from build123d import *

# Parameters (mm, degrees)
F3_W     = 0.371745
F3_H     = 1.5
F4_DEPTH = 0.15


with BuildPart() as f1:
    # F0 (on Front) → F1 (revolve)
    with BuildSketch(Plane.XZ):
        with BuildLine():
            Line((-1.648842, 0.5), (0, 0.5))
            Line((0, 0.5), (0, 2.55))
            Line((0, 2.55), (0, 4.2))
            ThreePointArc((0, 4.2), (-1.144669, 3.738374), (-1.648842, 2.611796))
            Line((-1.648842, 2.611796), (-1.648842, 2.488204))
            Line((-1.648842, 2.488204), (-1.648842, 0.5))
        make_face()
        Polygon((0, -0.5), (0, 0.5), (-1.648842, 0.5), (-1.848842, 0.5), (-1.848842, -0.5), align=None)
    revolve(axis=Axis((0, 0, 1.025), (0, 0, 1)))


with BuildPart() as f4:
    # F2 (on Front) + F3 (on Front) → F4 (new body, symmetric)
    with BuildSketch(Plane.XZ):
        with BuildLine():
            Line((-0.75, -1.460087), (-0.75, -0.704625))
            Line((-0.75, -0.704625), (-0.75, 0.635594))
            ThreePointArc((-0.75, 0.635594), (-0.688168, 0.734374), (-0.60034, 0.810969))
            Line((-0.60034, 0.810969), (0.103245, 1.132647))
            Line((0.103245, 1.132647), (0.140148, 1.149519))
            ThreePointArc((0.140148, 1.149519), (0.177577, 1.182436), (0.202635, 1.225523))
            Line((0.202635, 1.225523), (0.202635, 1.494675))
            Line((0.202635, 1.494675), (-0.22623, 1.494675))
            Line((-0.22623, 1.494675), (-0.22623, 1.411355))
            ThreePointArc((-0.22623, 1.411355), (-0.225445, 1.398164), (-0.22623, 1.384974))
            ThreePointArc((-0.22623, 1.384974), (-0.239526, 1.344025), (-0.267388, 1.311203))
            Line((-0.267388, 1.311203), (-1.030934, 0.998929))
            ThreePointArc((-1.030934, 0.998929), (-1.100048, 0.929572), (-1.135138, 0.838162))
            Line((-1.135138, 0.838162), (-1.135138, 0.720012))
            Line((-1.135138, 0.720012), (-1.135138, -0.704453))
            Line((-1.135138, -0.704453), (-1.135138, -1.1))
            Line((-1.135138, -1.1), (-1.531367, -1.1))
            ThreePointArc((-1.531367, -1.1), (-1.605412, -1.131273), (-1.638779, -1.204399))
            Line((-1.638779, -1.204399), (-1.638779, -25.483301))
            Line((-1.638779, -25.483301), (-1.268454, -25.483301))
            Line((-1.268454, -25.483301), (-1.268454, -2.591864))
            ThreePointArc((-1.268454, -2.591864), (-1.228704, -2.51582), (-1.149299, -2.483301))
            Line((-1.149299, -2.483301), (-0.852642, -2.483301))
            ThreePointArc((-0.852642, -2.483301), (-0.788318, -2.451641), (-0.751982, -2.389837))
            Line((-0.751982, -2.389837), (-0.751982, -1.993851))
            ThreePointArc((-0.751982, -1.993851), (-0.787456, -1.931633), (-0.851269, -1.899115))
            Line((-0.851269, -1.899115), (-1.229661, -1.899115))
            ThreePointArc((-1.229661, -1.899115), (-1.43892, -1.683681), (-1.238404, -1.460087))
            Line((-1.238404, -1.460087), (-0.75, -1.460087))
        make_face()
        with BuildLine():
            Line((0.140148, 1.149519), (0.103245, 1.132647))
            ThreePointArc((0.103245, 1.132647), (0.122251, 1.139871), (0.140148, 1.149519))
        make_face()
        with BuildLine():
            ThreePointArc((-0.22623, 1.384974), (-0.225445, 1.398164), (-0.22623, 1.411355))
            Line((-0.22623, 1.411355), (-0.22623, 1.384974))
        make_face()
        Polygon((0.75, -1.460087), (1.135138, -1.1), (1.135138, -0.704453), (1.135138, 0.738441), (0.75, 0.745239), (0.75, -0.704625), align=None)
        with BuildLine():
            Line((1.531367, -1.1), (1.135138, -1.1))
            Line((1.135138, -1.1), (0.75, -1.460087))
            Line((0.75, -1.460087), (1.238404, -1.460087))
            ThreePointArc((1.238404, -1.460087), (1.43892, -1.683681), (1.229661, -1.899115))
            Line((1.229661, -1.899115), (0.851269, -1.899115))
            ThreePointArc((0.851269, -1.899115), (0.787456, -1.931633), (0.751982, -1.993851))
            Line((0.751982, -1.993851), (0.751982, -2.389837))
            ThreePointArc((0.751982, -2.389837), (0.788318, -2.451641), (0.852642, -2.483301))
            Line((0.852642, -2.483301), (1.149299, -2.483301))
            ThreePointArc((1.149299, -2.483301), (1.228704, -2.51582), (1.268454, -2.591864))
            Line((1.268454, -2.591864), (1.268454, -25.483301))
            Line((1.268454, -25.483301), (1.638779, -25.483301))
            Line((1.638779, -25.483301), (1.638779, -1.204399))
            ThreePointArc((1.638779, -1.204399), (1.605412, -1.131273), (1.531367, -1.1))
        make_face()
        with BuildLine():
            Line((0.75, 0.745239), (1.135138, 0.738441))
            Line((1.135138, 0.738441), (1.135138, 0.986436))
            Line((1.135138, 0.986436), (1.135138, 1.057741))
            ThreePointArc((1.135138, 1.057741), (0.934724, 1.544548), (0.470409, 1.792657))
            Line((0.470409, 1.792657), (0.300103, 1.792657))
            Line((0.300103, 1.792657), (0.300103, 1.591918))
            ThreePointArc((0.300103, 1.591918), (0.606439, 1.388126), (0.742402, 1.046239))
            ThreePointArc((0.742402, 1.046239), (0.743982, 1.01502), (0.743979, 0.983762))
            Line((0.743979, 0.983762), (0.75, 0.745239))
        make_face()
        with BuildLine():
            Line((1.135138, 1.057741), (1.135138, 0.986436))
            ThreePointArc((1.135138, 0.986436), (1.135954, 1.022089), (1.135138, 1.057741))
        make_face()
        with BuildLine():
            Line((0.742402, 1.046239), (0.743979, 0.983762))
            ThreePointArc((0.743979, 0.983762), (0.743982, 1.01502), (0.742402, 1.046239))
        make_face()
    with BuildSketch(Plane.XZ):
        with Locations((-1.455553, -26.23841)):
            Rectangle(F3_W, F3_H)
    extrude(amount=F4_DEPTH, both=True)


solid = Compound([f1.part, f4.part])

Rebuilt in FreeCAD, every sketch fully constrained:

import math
import FreeCAD as App
import Part
import Sketcher
from FreeCAD import Vector


def add_polygon(sketch, points):
    """Adds a closed chain of lines whose ends are joined by coincident constraints."""
    first, n = sketch.GeometryCount, len(points)
    for a, b in zip(points, points[1:] + points[:1]):
        sketch.addGeometry(Part.LineSegment(App.Vector(*a, 0), App.Vector(*b, 0)), False)
    for i in range(n):
        sketch.addConstraint(Sketcher.Constraint("Coincident", first + i, 2, first + (i + 1) % n, 1))

doc = App.newDocument("Part")
body = doc.addObject("PartDesign::Body", "Body")

# Sketch on XZ plane
sketch1 = doc.addObject("Sketcher::SketchObject", "Sketch")
body.addObject(sketch1)
sketch1.AttachmentSupport = (doc.XZ_Plane, [""])
sketch1.MapMode = "FlatFace"
sketch1.addGeometry(Part.ArcOfCircle(Part.Circle(Vector(0, 2.55, 0), Vector(0, 0, 1), 1.65), math.radians(90), math.radians(178)), False)
sketch1.addGeometry(Part.LineSegment(Vector(-1.65, 2.61, 0), Vector(-1.65, 0.5, 0)), False)
sketch1.addGeometry(Part.LineSegment(Vector(-1.65, 0.5, 0), Vector(-1.85, 0.5, 0)), False)
sketch1.addGeometry(Part.LineSegment(Vector(-1.85, 0.5, 0), Vector(-1.85, -0.5, 0)), False)
sketch1.addGeometry(Part.LineSegment(Vector(-1.85, -0.5, 0), Vector(0, -0.5, 0)), False)
sketch1.addGeometry(Part.LineSegment(Vector(0, -0.5, 0), Vector(0, 4.2, 0)), False)
sketch1.addConstraint(Sketcher.Constraint("Coincident", 0, 2, 1, 1))
sketch1.addConstraint(Sketcher.Constraint("Coincident", 1, 2, 2, 1))
sketch1.addConstraint(Sketcher.Constraint("Coincident", 2, 2, 3, 1))
sketch1.addConstraint(Sketcher.Constraint("Coincident", 3, 2, 4, 1))
sketch1.addConstraint(Sketcher.Constraint("Coincident", 4, 2, 5, 1))
sketch1.addConstraint(Sketcher.Constraint("Coincident", 5, 2, 0, 1))
sketch1.addConstraint(Sketcher.Constraint("Vertical", 1))
sketch1.addConstraint(Sketcher.Constraint("Horizontal", 2))
sketch1.addConstraint(Sketcher.Constraint("Vertical", 3))
sketch1.addConstraint(Sketcher.Constraint("Horizontal", 4))
sketch1.addConstraint(Sketcher.Constraint("Vertical", 5))
sketch1.addConstraint(Sketcher.Constraint("PointOnObject", 0, 3, -2))
sketch1.addConstraint(Sketcher.Constraint("PointOnObject", 4, 2, -2))
sketch1.addConstraint(Sketcher.Constraint("DistanceY", 3, 2, 3, 1, 1.0))
sketch1.addConstraint(Sketcher.Constraint("Radius", 0, 1.649999))
sketch1.addConstraint(Sketcher.Constraint("DistanceX", 2, 2, 2, 1, 0.2))
sketch1.addConstraint(Sketcher.Constraint("DistanceY", 5, 1, 5, 2, 4.7))
sketch1.addConstraint(Sketcher.Constraint("DistanceY", -1, 1, 1, 2, 0.5))
sketch1.addConstraint(Sketcher.Constraint("DistanceX", 4, 1, 4, 2, 1.848842))
revolution = doc.addObject("PartDesign::Revolution", "Revolution")
body.addObject(revolution)
revolution.Profile = sketch1
revolution.ReferenceAxis = (sketch1, ["V_Axis"])
revolution.Angle = 360
body2 = doc.addObject("PartDesign::Body", "Body001")
body2.AllowCompound = True

# Sketch on XZ plane
sketch2 = doc.addObject("Sketcher::SketchObject", "Sketch001")
body2.addObject(sketch2)
sketch2.AttachmentSupport = (doc.getObject("XZ_Plane001"), [""])
sketch2.MapMode = "FlatFace"
sketch2.addGeometry(Part.LineSegment(Vector(-0.75, -1.46, 0), Vector(-0.75, 0.636, 0)), False)  # 0
sketch2.addGeometry(Part.ArcOfCircle(Part.Circle(Vector(-0.386, 0.476, 0), Vector(0, 0, 1), 0.397), math.radians(123), math.radians(156)), False)  # 1
sketch2.addGeometry(Part.LineSegment(Vector(-0.6, 0.811, 0), Vector(0.103, 1.133, 0)), False)  # 2
sketch2.addGeometry(Part.ArcOfCircle(Part.Circle(Vector(0.058, 1.281, 0), Vector(0, 0, 1), 0.155), math.radians(-72.95), math.radians(-57.91)), False)  # 3
sketch2.addGeometry(Part.ArcOfCircle(Part.Circle(Vector(0.058, 1.281, 0), Vector(0, 0, 1), 0.155), math.radians(-58), math.radians(-21)), False)  # 4
sketch2.addGeometry(Part.LineSegment(Vector(0.203, 1.226, 0), Vector(0.203, 1.495, 0)), False)  # 5
sketch2.addGeometry(Part.LineSegment(Vector(0.203, 1.495, 0), Vector(-0.226, 1.495, 0)), False)  # 6
sketch2.addGeometry(Part.LineSegment(Vector(-0.226, 1.495, 0), Vector(-0.226, 1.385, 0)), False)  # 7
sketch2.addGeometry(Part.ArcOfCircle(Part.Circle(Vector(-0.337, 1.398, 0), Vector(0, 0, 1), 0.111), math.radians(-51), math.radians(-7)), False)  # 8
sketch2.addGeometry(Part.LineSegment(Vector(-0.267, 1.311, 0), Vector(-1.031, 0.999, 0)), False)  # 9
sketch2.addGeometry(Part.ArcOfCircle(Part.Circle(Vector(-0.902, 0.801, 0), Vector(0, 0, 1), 0.236), math.radians(123), math.radians(171)), False)  # 10
sketch2.addGeometry(Part.LineSegment(Vector(-1.135, 0.838, 0), Vector(-1.135, -1.1, 0)), False)  # 11
sketch2.addGeometry(Part.LineSegment(Vector(-1.135, -1.1, 0), Vector(-1.531, -1.1, 0)), False)  # 12
sketch2.addGeometry(Part.ArcOfCircle(Part.Circle(Vector(-1.528, -1.211, 0), Vector(0, 0, 1), 0.111), math.radians(92), math.radians(177)), False)  # 13
sketch2.addGeometry(Part.LineSegment(Vector(-1.639, -1.204, 0), Vector(-1.639, -25.483, 0)), False)  # 14
sketch2.addGeometry(Part.LineSegment(Vector(-1.639, -25.483, 0), Vector(-1.268, -25.483, 0)), False)  # 15
sketch2.addGeometry(Part.LineSegment(Vector(-1.268, -25.483, 0), Vector(-1.268, -2.592, 0)), False)  # 16
sketch2.addGeometry(Part.ArcOfCircle(Part.Circle(Vector(-1.144, -2.608, 0), Vector(0, 0, 1), 0.125), math.radians(92), math.radians(172)), False)  # 17
sketch2.addGeometry(Part.LineSegment(Vector(-1.149, -2.483, 0), Vector(-0.853, -2.483, 0)), False)  # 18
sketch2.addGeometry(Part.ArcOfCircle(Part.Circle(Vector(-0.873, -2.36, 0), Vector(0, 0, 1), 0.125), math.radians(-80), math.radians(-14)), False)  # 19
sketch2.addGeometry(Part.LineSegment(Vector(-0.752, -2.39, 0), Vector(-0.752, -1.994, 0)), False)  # 20
sketch2.addGeometry(Part.ArcOfCircle(Part.Circle(Vector(-0.874, -2.022, 0), Vector(0, 0, 1), 0.125), math.radians(13), math.radians(80)), False)  # 21
sketch2.addGeometry(Part.LineSegment(Vector(-0.851, -1.899, 0), Vector(-1.23, -1.899, 0)), False)  # 22
sketch2.addGeometry(Part.ArcOfCircle(Part.Circle(Vector(-1.219, -1.679, 0), Vector(0, 0, 1), 0.22), math.radians(95), math.radians(267)), False)  # 23
sketch2.addGeometry(Part.LineSegment(Vector(-1.238, -1.46, 0), Vector(-0.75, -1.46, 0)), False)  # 24
sketch2.addGeometry(Part.LineSegment(Vector(1.135, -1.1, 0), Vector(1.135, 0.986, 0)), False)  # 25
sketch2.addGeometry(Part.ArcOfCircle(Part.Circle(Vector(0.357, 1.022, 0), Vector(0, 0, 1), 0.779), math.radians(-2.62), math.radians(2.62)), False)  # 26
sketch2.addGeometry(Part.ArcOfCircle(Part.Circle(Vector(0.357, 1.022, 0), Vector(0, 0, 1), 0.779), math.radians(3), math.radians(82)), False)  # 27
sketch2.addGeometry(Part.LineSegment(Vector(0.47, 1.793, 0), Vector(0.3, 1.793, 0)), False)  # 28
sketch2.addGeometry(Part.LineSegment(Vector(0.3, 1.793, 0), Vector(0.3, 1.592, 0)), False)  # 29
sketch2.addGeometry(Part.ArcOfCircle(Part.Circle(Vector(0.127, 0.999, 0), Vector(0, 0, 1), 0.617), math.radians(4), math.radians(74)), False)  # 30
sketch2.addGeometry(Part.LineSegment(Vector(0.742, 1.046, 0), Vector(0.744, 0.984, 0)), False)  # 31
sketch2.addGeometry(Part.LineSegment(Vector(0.744, 0.984, 0), Vector(0.75, 0.745, 0)), False)  # 32
sketch2.addGeometry(Part.LineSegment(Vector(0.75, 0.745, 0), Vector(0.75, -1.46, 0)), False)  # 33
sketch2.addGeometry(Part.LineSegment(Vector(0.75, -1.46, 0), Vector(1.238, -1.46, 0)), False)  # 34
sketch2.addGeometry(Part.ArcOfCircle(Part.Circle(Vector(1.219, -1.679, 0), Vector(0, 0, 1), 0.22), math.radians(-87), math.radians(85)), False)  # 35
sketch2.addGeometry(Part.LineSegment(Vector(1.23, -1.899, 0), Vector(0.851, -1.899, 0)), False)  # 36
sketch2.addGeometry(Part.ArcOfCircle(Part.Circle(Vector(0.874, -2.022, 0), Vector(0, 0, 1), 0.125), math.radians(100), math.radians(167)), False)  # 37
sketch2.addGeometry(Part.LineSegment(Vector(0.752, -1.994, 0), Vector(0.752, -2.39, 0)), False)  # 38
sketch2.addGeometry(Part.ArcOfCircle(Part.Circle(Vector(0.873, -2.36, 0), Vector(0, 0, 1), 0.125), math.radians(-166), math.radians(-100)), False)  # 39
sketch2.addGeometry(Part.LineSegment(Vector(0.853, -2.483, 0), Vector(1.149, -2.483, 0)), False)  # 40
sketch2.addGeometry(Part.ArcOfCircle(Part.Circle(Vector(1.144, -2.608, 0), Vector(0, 0, 1), 0.125), math.radians(8), math.radians(88)), False)  # 41
sketch2.addGeometry(Part.LineSegment(Vector(1.268, -2.592, 0), Vector(1.268, -25.483, 0)), False)  # 42
sketch2.addGeometry(Part.LineSegment(Vector(1.268, -25.483, 0), Vector(1.639, -25.483, 0)), False)  # 43
sketch2.addGeometry(Part.LineSegment(Vector(1.639, -25.483, 0), Vector(1.639, -1.204, 0)), False)  # 44
sketch2.addGeometry(Part.ArcOfCircle(Part.Circle(Vector(1.528, -1.211, 0), Vector(0, 0, 1), 0.111), math.radians(3), math.radians(88)), False)  # 45
sketch2.addGeometry(Part.LineSegment(Vector(1.531, -1.1, 0), Vector(1.135, -1.1, 0)), False)  # 46
add_polygon(sketch2, [(-1.641, -25.488), (-1.641, -26.988), (-1.27, -26.988), (-1.27, -25.488)])  # lines 47-50
sketch2.addConstraint(Sketcher.Constraint("Coincident", 0, 2, 1, 2))
sketch2.addConstraint(Sketcher.Constraint("Coincident", 1, 1, 2, 1))
sketch2.addConstraint(Sketcher.Constraint("Coincident", 2, 2, 3, 1))
sketch2.addConstraint(Sketcher.Constraint("Coincident", 3, 2, 4, 1))
sketch2.addConstraint(Sketcher.Constraint("Coincident", 4, 2, 5, 1))
sketch2.addConstraint(Sketcher.Constraint("Coincident", 5, 2, 6, 1))
sketch2.addConstraint(Sketcher.Constraint("Coincident", 6, 2, 7, 1))
sketch2.addConstraint(Sketcher.Constraint("Coincident", 7, 2, 8, 2))
sketch2.addConstraint(Sketcher.Constraint("Coincident", 8, 1, 9, 1))
sketch2.addConstraint(Sketcher.Constraint("Coincident", 9, 2, 10, 1))
sketch2.addConstraint(Sketcher.Constraint("Coincident", 10, 2, 11, 1))
sketch2.addConstraint(Sketcher.Constraint("Coincident", 11, 2, 12, 1))
sketch2.addConstraint(Sketcher.Constraint("Coincident", 12, 2, 13, 1))
sketch2.addConstraint(Sketcher.Constraint("Coincident", 13, 2, 14, 1))
sketch2.addConstraint(Sketcher.Constraint("Coincident", 14, 2, 15, 1))
sketch2.addConstraint(Sketcher.Constraint("Coincident", 15, 2, 16, 1))
sketch2.addConstraint(Sketcher.Constraint("Coincident", 16, 2, 17, 2))
sketch2.addConstraint(Sketcher.Constraint("Coincident", 17, 1, 18, 1))
sketch2.addConstraint(Sketcher.Constraint("Coincident", 18, 2, 19, 1))
sketch2.addConstraint(Sketcher.Constraint("Coincident", 19, 2, 20, 1))
sketch2.addConstraint(Sketcher.Constraint("Coincident", 20, 2, 21, 1))
sketch2.addConstraint(Sketcher.Constraint("Coincident", 21, 2, 22, 1))
sketch2.addConstraint(Sketcher.Constraint("Coincident", 22, 2, 23, 2))
sketch2.addConstraint(Sketcher.Constraint("Coincident", 23, 1, 24, 1))
sketch2.addConstraint(Sketcher.Constraint("Coincident", 24, 2, 0, 1))
sketch2.addConstraint(Sketcher.Constraint("Coincident", 25, 2, 26, 1))
sketch2.addConstraint(Sketcher.Constraint("Coincident", 26, 2, 27, 1))
sketch2.addConstraint(Sketcher.Constraint("Coincident", 27, 2, 28, 1))
sketch2.addConstraint(Sketcher.Constraint("Coincident", 28, 2, 29, 1))
sketch2.addConstraint(Sketcher.Constraint("Coincident", 29, 2, 30, 2))
sketch2.addConstraint(Sketcher.Constraint("Coincident", 30, 1, 31, 1))
sketch2.addConstraint(Sketcher.Constraint("Coincident", 31, 2, 32, 1))
sketch2.addConstraint(Sketcher.Constraint("Coincident", 32, 2, 33, 1))
sketch2.addConstraint(Sketcher.Constraint("Coincident", 33, 2, 34, 1))
sketch2.addConstraint(Sketcher.Constraint("Coincident", 34, 2, 35, 2))
sketch2.addConstraint(Sketcher.Constraint("Coincident", 35, 1, 36, 1))
sketch2.addConstraint(Sketcher.Constraint("Coincident", 36, 2, 37, 1))
sketch2.addConstraint(Sketcher.Constraint("Coincident", 37, 2, 38, 1))
sketch2.addConstraint(Sketcher.Constraint("Coincident", 38, 2, 39, 1))
sketch2.addConstraint(Sketcher.Constraint("Coincident", 39, 2, 40, 1))
sketch2.addConstraint(Sketcher.Constraint("Coincident", 40, 2, 41, 2))
sketch2.addConstraint(Sketcher.Constraint("Coincident", 41, 1, 42, 1))
sketch2.addConstraint(Sketcher.Constraint("Coincident", 42, 2, 43, 1))
sketch2.addConstraint(Sketcher.Constraint("Coincident", 43, 2, 44, 1))
sketch2.addConstraint(Sketcher.Constraint("Coincident", 44, 2, 45, 1))
sketch2.addConstraint(Sketcher.Constraint("Coincident", 45, 2, 46, 1))
sketch2.addConstraint(Sketcher.Constraint("Coincident", 46, 2, 25, 1))
sketch2.addConstraint(Sketcher.Constraint("Vertical", 0))
sketch2.addConstraint(Sketcher.Constraint("Vertical", 5))
sketch2.addConstraint(Sketcher.Constraint("Horizontal", 6))
sketch2.addConstraint(Sketcher.Constraint("Vertical", 7))
sketch2.addConstraint(Sketcher.Constraint("Vertical", 11))
sketch2.addConstraint(Sketcher.Constraint("Horizontal", 12))
sketch2.addConstraint(Sketcher.Constraint("Vertical", 14))
sketch2.addConstraint(Sketcher.Constraint("Horizontal", 15))
sketch2.addConstraint(Sketcher.Constraint("Vertical", 16))
sketch2.addConstraint(Sketcher.Constraint("Horizontal", 18))
sketch2.addConstraint(Sketcher.Constraint("Vertical", 20))
sketch2.addConstraint(Sketcher.Constraint("Horizontal", 22))
sketch2.addConstraint(Sketcher.Constraint("Horizontal", 24))
sketch2.addConstraint(Sketcher.Constraint("Vertical", 25))
sketch2.addConstraint(Sketcher.Constraint("Horizontal", 28))
sketch2.addConstraint(Sketcher.Constraint("Vertical", 29))
sketch2.addConstraint(Sketcher.Constraint("Vertical", 33))
sketch2.addConstraint(Sketcher.Constraint("Horizontal", 34))
sketch2.addConstraint(Sketcher.Constraint("Horizontal", 36))
sketch2.addConstraint(Sketcher.Constraint("Vertical", 38))
sketch2.addConstraint(Sketcher.Constraint("Horizontal", 40))
sketch2.addConstraint(Sketcher.Constraint("Vertical", 42))
sketch2.addConstraint(Sketcher.Constraint("Horizontal", 43))
sketch2.addConstraint(Sketcher.Constraint("Vertical", 44))
sketch2.addConstraint(Sketcher.Constraint("Horizontal", 46))
sketch2.addConstraint(Sketcher.Constraint("Vertical", 47))
sketch2.addConstraint(Sketcher.Constraint("Horizontal", 48))
sketch2.addConstraint(Sketcher.Constraint("Vertical", 49))
sketch2.addConstraint(Sketcher.Constraint("Horizontal", 50))
sketch2.addConstraint(Sketcher.Constraint("Equal", 23, 35))
sketch2.addConstraint(Sketcher.Constraint("Equal", 21, 37))
sketch2.addConstraint(Sketcher.Constraint("Equal", 19, 39))
sketch2.addConstraint(Sketcher.Constraint("Equal", 17, 41))
sketch2.addConstraint(Sketcher.Constraint("Equal", 13, 45))
sketch2.addConstraint(Sketcher.Constraint("Symmetric", 23, 3, 35, 3, -2))
sketch2.addConstraint(Sketcher.Constraint("Symmetric", 21, 3, 37, 3, -2))
sketch2.addConstraint(Sketcher.Constraint("Symmetric", 19, 3, 39, 3, -2))
sketch2.addConstraint(Sketcher.Constraint("Symmetric", 17, 3, 41, 3, -2))
sketch2.addConstraint(Sketcher.Constraint("Symmetric", 13, 3, 45, 3, -2))
sketch2.addConstraint(Sketcher.Constraint("Symmetric", 24, 2, 33, 2, -2))
sketch2.addConstraint(Sketcher.Constraint("Symmetric", 15, 2, 42, 2, -2))
sketch2.addConstraint(Sketcher.Constraint("Symmetric", 11, 2, 46, 2, -2))
sketch2.addConstraint(Sketcher.Constraint("Parallel", 31, 32))
sketch2.addConstraint(Sketcher.Constraint("Horizontal", 26, 3, 27, 3))
sketch2.addConstraint(Sketcher.Constraint("Horizontal", 22, 2, 35, 1))
sketch2.addConstraint(Sketcher.Constraint("Horizontal", 20, 2, 37, 2))
sketch2.addConstraint(Sketcher.Constraint("Horizontal", 18, 2, 39, 2))
sketch2.addConstraint(Sketcher.Constraint("Horizontal", 13, 2, 44, 2))
sketch2.addConstraint(Sketcher.Constraint("Vertical", 25, 2, 26, 2))
sketch2.addConstraint(Sketcher.Constraint("DistanceY", 47, 2, 47, 1, 1.5))
sketch2.addConstraint(Sketcher.Constraint("DistanceY", 11, 2, -1, 1, 1.1))
sketch2.addConstraint(Sketcher.Constraint("DistanceX", 0, 2, -1, 1, 0.75))
sketch2.addConstraint(Sketcher.Constraint("Radius", 1, 0.397379))
sketch2.addConstraint(Sketcher.Constraint("Radius", 10, 0.236451))
sketch2.addConstraint(Sketcher.Constraint("Radius", 23, 0.22008))
sketch2.addConstraint(Sketcher.Constraint("Radius", 26, 0.779269))
sketch2.addConstraint(Sketcher.Constraint("DistanceY", 7, 2, 7, 1, 0.109701))
sketch2.addConstraint(Sketcher.Constraint("Radius", 3, 0.155085))
sketch2.addConstraint(Sketcher.Constraint("Radius", 4, 0.155134))
sketch2.addConstraint(Sketcher.Constraint("Radius", 8, 0.111128))
sketch2.addConstraint(Sketcher.Constraint("Radius", 13, 0.110697))
sketch2.addConstraint(Sketcher.Constraint("Radius", 17, 0.125044))
sketch2.addConstraint(Sketcher.Constraint("Radius", 19, 0.124958))
sketch2.addConstraint(Sketcher.Constraint("Radius", 21, 0.124954))
sketch2.addConstraint(Sketcher.Constraint("Radius", 27, 0.778857))
sketch2.addConstraint(Sketcher.Constraint("Radius", 30, 0.617265))
sketch2.addConstraint(Sketcher.Constraint("Distance", 32, 0.238599))
sketch2.addConstraint(Sketcher.Constraint("DistanceX", 12, 2, 12, 1, 0.396229))
sketch2.addConstraint(Sketcher.Constraint("DistanceX", 22, 2, 22, 1, 0.378392))
sketch2.addConstraint(Sketcher.Constraint("DistanceY", 0, 1, 0, 2, 2.095681))
sketch2.addConstraint(Sketcher.Constraint("DistanceY", 29, 2, 29, 1, 0.200739))
sketch2.addConstraint(Sketcher.Constraint("DistanceY", 23, 3, -1, 1, 1.679299))
sketch2.addConstraint(Sketcher.Constraint("DistanceY", 13, 2, -1, 1, 1.204399))
sketch2.addConstraint(Sketcher.Constraint("DistanceY", 14, 2, -1, 1, 25.483301))
sketch2.addConstraint(Sketcher.Constraint("DistanceX", 17, 1, -1, 1, 1.149299))
sketch2.addConstraint(Sketcher.Constraint("DistanceY", 17, 1, -1, 1, 2.483301))
sketch2.addConstraint(Sketcher.Constraint("DistanceX", 6, 2, 6, 1, 0.428865))
sketch2.addConstraint(Sketcher.Constraint("DistanceX", 15, 1, 15, 2, 0.370325))
sketch2.addConstraint(Sketcher.Constraint("DistanceX", 18, 1, 18, 2, 0.296657))
sketch2.addConstraint(Sketcher.Constraint("DistanceX", 24, 1, 24, 2, 0.488404))
sketch2.addConstraint(Sketcher.Constraint("DistanceX", 28, 2, 28, 1, 0.170306))
sketch2.addConstraint(Sketcher.Constraint("DistanceX", 48, 1, 48, 2, 0.371745))
sketch2.addConstraint(Sketcher.Constraint("DistanceY", 5, 1, 5, 2, 0.269152))
sketch2.addConstraint(Sketcher.Constraint("DistanceY", 11, 2, 11, 1, 1.938162))
sketch2.addConstraint(Sketcher.Constraint("DistanceY", 16, 1, 16, 2, 22.891437))
sketch2.addConstraint(Sketcher.Constraint("DistanceY", 20, 1, 20, 2, 0.395986))
sketch2.addConstraint(Sketcher.Constraint("DistanceY", 25, 1, 25, 2, 2.086436))
sketch2.addConstraint(Sketcher.Constraint("DistanceY", 33, 2, 33, 1, 2.205326))
sketch2.addConstraint(Sketcher.Constraint("DistanceY", -1, 1, 1, 3, 0.476421))
sketch2.addConstraint(Sketcher.Constraint("DistanceX", 8, 3, -1, 1, 0.336572))
sketch2.addConstraint(Sketcher.Constraint("DistanceY", -1, 1, 8, 3, 1.398168))
sketch2.addConstraint(Sketcher.Constraint("DistanceX", 10, 3, -1, 1, 0.901631))
sketch2.addConstraint(Sketcher.Constraint("DistanceX", 13, 3, -1, 1, 1.528259))
sketch2.addConstraint(Sketcher.Constraint("DistanceY", 19, 3, -1, 1, 2.36007))
sketch2.addConstraint(Sketcher.Constraint("DistanceY", -1, 1, 26, 3, 1.022088))
sketch2.addConstraint(Sketcher.Constraint("DistanceX", 1, 1, -1, 1, 0.60034))
sketch2.addConstraint(Sketcher.Constraint("DistanceY", -1, 1, 1, 1, 0.810969))
sketch2.addConstraint(Sketcher.Constraint("DistanceY", -1, 1, 3, 2, 1.149519))
sketch2.addConstraint(Sketcher.Constraint("DistanceX", 6, 2, -1, 1, 0.22623))
sketch2.addConstraint(Sketcher.Constraint("DistanceX", 8, 1, -1, 1, 0.267388))
sketch2.addConstraint(Sketcher.Constraint("DistanceY", -1, 1, 9, 2, 0.998929))
sketch2.addConstraint(Sketcher.Constraint("DistanceX", 19, 2, -1, 1, 0.751982))
sketch2.addConstraint(Sketcher.Constraint("DistanceX", 21, 2, -1, 1, 0.851269))
sketch2.addConstraint(Sketcher.Constraint("DistanceX", -1, 1, 27, 2, 0.470409))
sketch2.addConstraint(Sketcher.Constraint("DistanceY", -1, 1, 30, 1, 1.046239))
sketch2.addConstraint(Sketcher.Constraint("DistanceX", -1, 1, 31, 2, 0.743979))
sketch2.addConstraint(Sketcher.Constraint("DistanceY", 47, 2, -1, 1, 26.98841))
sketch2.addConstraint(Sketcher.Constraint("DistanceX", 48, 2, -1, 1, 1.26968))
sketch2.addConstraint(Sketcher.Constraint("Distance", 2, 0.773633))
sketch2.addConstraint(Sketcher.Constraint("Distance", 9, 0.824935))
sketch2.addConstraint(Sketcher.Constraint("DistanceX", -1, 1, 3, 3, 0.057766))
sketch2.addConstraint(Sketcher.Constraint("DistanceY", -1, 1, 3, 3, 1.280913))
pad1 = doc.addObject("PartDesign::Pad", "Pad")
body2.addObject(pad1)
pad1.Profile = sketch2
pad1.Length = 0.3
pad1.Midplane = True

doc.recompute()
